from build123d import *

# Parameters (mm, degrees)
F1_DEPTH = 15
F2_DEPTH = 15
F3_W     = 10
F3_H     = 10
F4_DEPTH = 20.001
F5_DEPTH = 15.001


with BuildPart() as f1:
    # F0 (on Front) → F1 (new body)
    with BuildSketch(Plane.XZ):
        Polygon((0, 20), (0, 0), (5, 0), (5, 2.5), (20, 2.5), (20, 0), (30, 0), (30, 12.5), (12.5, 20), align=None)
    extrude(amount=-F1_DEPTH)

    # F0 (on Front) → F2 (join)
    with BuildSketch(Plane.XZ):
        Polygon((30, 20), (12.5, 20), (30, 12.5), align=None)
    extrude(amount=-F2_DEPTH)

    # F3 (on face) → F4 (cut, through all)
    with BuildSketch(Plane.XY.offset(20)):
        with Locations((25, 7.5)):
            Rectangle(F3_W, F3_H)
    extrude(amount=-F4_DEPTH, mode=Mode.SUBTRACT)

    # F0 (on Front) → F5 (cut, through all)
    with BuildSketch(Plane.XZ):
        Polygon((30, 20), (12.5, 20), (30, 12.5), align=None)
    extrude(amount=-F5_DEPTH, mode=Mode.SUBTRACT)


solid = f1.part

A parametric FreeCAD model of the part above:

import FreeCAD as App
import Part
import Sketcher
from FreeCAD import Vector
Q = App.Units.Quantity

doc = App.newDocument("Part")
body = doc.addObject("PartDesign::Body", "Body")

sketch1 = body.newObject("Sketcher::SketchObject", "Sketch")
sketch1.AttachmentSupport = (doc.getObject("XZ_Plane"), [""])
sketch1.MapMode = "FlatFace"
sketch1.addGeometry([
    Part.LineSegment(Vector(0, 20, 0), Vector(0, 0, 0)),
    Part.LineSegment(Vector(0, 0, 0), Vector(5, 0, 0)),
    Part.LineSegment(Vector(5, 0, 0), Vector(5, 2.5, 0)),
    Part.LineSegment(Vector(5, 2.5, 0), Vector(20, 2.5, 0)),
    Part.LineSegment(Vector(20, 2.5, 0), Vector(20, 0, 0)),
    Part.LineSegment(Vector(20, 0, 0), Vector(30, 0, 0)),
    Part.LineSegment(Vector(30, 0, 0), Vector(30, 12.5, 0)),
    Part.LineSegment(Vector(30, 12.5, 0), Vector(12.5, 20, 0)),
    Part.LineSegment(Vector(12.5, 20, 0), Vector(0, 20, 0)),
], False)
sketch1.addConstraint([
    Sketcher.Constraint("Coincident", 0, 2, 1, 1),
    Sketcher.Constraint("Coincident", 1, 2, 2, 1),
    Sketcher.Constraint("Coincident", 2, 2, 3, 1),
    Sketcher.Constraint("Coincident", 3, 2, 4, 1),
    Sketcher.Constraint("Coincident", 4, 2, 5, 1),
    Sketcher.Constraint("Coincident", 5, 2, 6, 1),
    Sketcher.Constraint("Coincident", 6, 2, 7, 1),
    Sketcher.Constraint("Coincident", 7, 2, 8, 1),
    Sketcher.Constraint("Coincident", 8, 2, 0, 1),
    Sketcher.Constraint("Vertical", 0),
    Sketcher.Constraint("Horizontal", 1),
    Sketcher.Constraint("Vertical", 2),
    Sketcher.Constraint("Horizontal", 3),
    Sketcher.Constraint("Vertical", 4),
    Sketcher.Constraint("Horizontal", 5),
    Sketcher.Constraint("Vertical", 6),
    Sketcher.Constraint("Horizontal", 8),
    Sketcher.Constraint("Coincident", 0, 2, -1, 1),
    Sketcher.Constraint("PointOnObject", 4, 2, -1),
    Sketcher.Constraint("Equal", 8, 6),
    Sketcher.Constraint("DistanceX", 1, 1, 1, 2, Q("5 mm")),
    Sketcher.Constraint("DistanceX", 3, 1, 3, 2, Q("15 mm")),
    Sketcher.Constraint("DistanceX", 5, 1, 5, 2, Q("10 mm")),
    Sketcher.Constraint("DistanceY", 0, 2, 0, 1, Q("20 mm")),
    Sketcher.Constraint("DistanceX", 8, 2, 8, 1, Q("12.5 mm")),
    Sketcher.Constraint("DistanceY", 2, 1, 2, 2, Q("2.5 mm")),
])
pad1 = body.newObject("PartDesign::Pad", "Pad")
pad1.Profile = sketch1
pad1.Length = 15
pad1.Reversed = True

sketch2 = body.newObject("Sketcher::SketchObject", "Sketch001")
sketch2.AttachmentSupport = (doc.getObject("XZ_Plane"), [""])
sketch2.MapMode = "FlatFace"
sketch2.addGeometry([
    Part.LineSegment(Vector(30, 20, 0), Vector(12, 20, 0)),
    Part.LineSegment(Vector(12, 20, 0), Vector(30, 12, 0)),
    Part.LineSegment(Vector(30, 12, 0), Vector(30, 20, 0)),
], False)
sketch2.addConstraint([
    Sketcher.Constraint("Coincident", 0, 2, 1, 1),
    Sketcher.Constraint("Coincident", 1, 2, 2, 1),
    Sketcher.Constraint("Coincident", 2, 2, 0, 1),
    Sketcher.Constraint("Horizontal", 0),
    Sketcher.Constraint("Vertical", 2),
    Sketcher.Constraint("DistanceX", 0, 2, 0, 1, Q("17.5 mm")),
    Sketcher.Constraint("DistanceY", 2, 1, 2, 2, Q("7.5 mm")),
    Sketcher.Constraint("DistanceY", -1, 1, 0, 2, Q("20 mm")),
    Sketcher.Constraint("DistanceX", -1, 1, 1, 2, Q("30 mm")),
])
pad2 = body.newObject("PartDesign::Pad", "Pad001")
pad2.Profile = sketch2
pad2.Length = 15
pad2.Reversed = True

sketch3 = body.newObject("Sketcher::SketchObject", "Sketch002")
sketch3.AttachmentSupport = (doc.getObject("XY_Plane"), [""])
sketch3.MapMode = "FlatFace"
sketch3.AttachmentOffset = App.Placement(Vector(0, 0, 20), App.Rotation())
sketch3.addGeometry([
    Part.LineSegment(Vector(20, 12, 0), Vector(20, 2, 0)),
    Part.LineSegment(Vector(20, 2, 0), Vector(30, 2, 0)),
    Part.LineSegment(Vector(30, 2, 0), Vector(30, 12, 0)),
    Part.LineSegment(Vector(30, 12, 0), Vector(20, 12, 0)),
], False)
sketch3.addConstraint([
    Sketcher.Constraint("Coincident", 0, 2, 1, 1),
    Sketcher.Constraint("Coincident", 1, 2, 2, 1),
    Sketcher.Constraint("Coincident", 2, 2, 3, 1),
    Sketcher.Constraint("Coincident", 3, 2, 0, 1),
    Sketcher.Constraint("Vertical", 0),
    Sketcher.Constraint("Horizontal", 1),
    Sketcher.Constraint("Vertical", 2),
    Sketcher.Constraint("Horizontal", 3),
    Sketcher.Constraint("Equal", 3, 0),
    Sketcher.Constraint("DistanceX", 1, 1, 1, 2, Q("10 mm")),
    Sketcher.Constraint("DistanceX", -1, 1, 0, 2, Q("20 mm")),
    Sketcher.Constraint("DistanceY", -1, 1, 0, 2, Q("2.5 mm")),
])
pocket1 = body.newObject("PartDesign::Pocket", "Pocket")
pocket1.Profile = sketch3
pocket1.Type = "ThroughAll"

sketch4 = body.newObject("Sketcher::SketchObject", "Sketch003")
sketch4.AttachmentSupport = (doc.getObject("XZ_Plane"), [""])
sketch4.MapMode = "FlatFace"
sketch4.addGeometry([
    Part.LineSegment(Vector(30, 20, 0), Vector(12, 20, 0)),
    Part.LineSegment(Vector(12, 20, 0), Vector(30, 12, 0)),
    Part.LineSegment(Vector(30, 12, 0), Vector(30, 20, 0)),
], False)
sketch4.addConstraint([
    Sketcher.Constraint("Coincident", 0, 2, 1, 1),
    Sketcher.Constraint("Coincident", 1, 2, 2, 1),
    Sketcher.Constraint("Coincident", 2, 2, 0, 1),
    Sketcher.Constraint("Horizontal", 0),
    Sketcher.Constraint("Vertical", 2),
    Sketcher.Constraint("DistanceX", 0, 2, 0, 1, Q("17.5 mm")),
    Sketcher.Constraint("DistanceY", 2, 1, 2, 2, Q("7.5 mm")),
    Sketcher.Constraint("DistanceY", -1, 1, 0, 2, Q("20 mm")),
    Sketcher.Constraint("DistanceX", -1, 1, 1, 2, Q("30 mm")),
])
pocket2 = body.newObject("PartDesign::Pocket", "Pocket001")
pocket2.Profile = sketch4
pocket2.Type = "ThroughAll"

doc.recompute()
